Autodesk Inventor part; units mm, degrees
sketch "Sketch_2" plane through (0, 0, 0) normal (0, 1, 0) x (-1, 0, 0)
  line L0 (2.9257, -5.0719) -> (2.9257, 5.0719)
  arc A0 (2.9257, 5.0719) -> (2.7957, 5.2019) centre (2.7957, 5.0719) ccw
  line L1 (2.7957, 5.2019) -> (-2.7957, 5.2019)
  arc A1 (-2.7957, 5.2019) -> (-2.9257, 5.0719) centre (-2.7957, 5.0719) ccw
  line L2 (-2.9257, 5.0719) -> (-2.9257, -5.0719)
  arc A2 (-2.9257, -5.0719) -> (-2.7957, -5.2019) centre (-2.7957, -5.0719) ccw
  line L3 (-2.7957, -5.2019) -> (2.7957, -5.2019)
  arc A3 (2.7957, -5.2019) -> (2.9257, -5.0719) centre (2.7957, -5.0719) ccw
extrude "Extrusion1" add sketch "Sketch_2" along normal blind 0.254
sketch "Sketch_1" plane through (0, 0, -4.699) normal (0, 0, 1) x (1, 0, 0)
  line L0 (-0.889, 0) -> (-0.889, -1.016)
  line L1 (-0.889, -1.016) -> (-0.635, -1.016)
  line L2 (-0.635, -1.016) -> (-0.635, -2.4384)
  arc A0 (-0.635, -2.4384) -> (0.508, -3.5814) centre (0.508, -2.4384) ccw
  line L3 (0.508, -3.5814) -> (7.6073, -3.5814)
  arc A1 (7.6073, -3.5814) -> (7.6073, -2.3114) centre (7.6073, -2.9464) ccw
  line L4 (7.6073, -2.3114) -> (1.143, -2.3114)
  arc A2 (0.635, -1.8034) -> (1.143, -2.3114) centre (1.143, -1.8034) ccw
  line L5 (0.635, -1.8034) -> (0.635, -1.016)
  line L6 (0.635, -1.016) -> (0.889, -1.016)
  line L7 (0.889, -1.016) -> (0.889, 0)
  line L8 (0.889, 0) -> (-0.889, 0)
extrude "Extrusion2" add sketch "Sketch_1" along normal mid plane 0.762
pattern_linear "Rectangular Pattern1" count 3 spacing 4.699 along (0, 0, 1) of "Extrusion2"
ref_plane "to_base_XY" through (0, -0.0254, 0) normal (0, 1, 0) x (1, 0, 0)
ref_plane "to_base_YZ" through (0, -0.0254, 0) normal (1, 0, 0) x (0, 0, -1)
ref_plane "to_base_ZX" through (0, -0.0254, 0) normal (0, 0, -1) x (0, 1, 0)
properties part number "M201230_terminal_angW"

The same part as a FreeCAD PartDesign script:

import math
import FreeCAD as App
import Part
import Sketcher
from FreeCAD import Vector
Q = App.Units.Quantity

doc = App.newDocument("Part")
body = doc.addObject("PartDesign::Body", "Body")

# Sketch on XZ plane
sketch1 = body.newObject("Sketcher::SketchObject", "Sketch")
sketch1.AttachmentSupport = (doc.getObject("XZ_Plane"), [""])
sketch1.MapMode = "FlatFace"
sketch1.addGeometry(Part.ArcOfCircle(Part.Circle(Vector(-2.7957, -5.0719, 0), Vector(0, 0, 1), 0.13), math.radians(180), math.radians(270)), False)
sketch1.addGeometry(Part.LineSegment(Vector(-2.9257, -5.0719, 0), Vector(-2.9257, 5.0719, 0)), False)
sketch1.addGeometry(Part.ArcOfCircle(Part.Circle(Vector(-2.7957, 5.0719, 0), Vector(0, 0, 1), 0.13), math.radians(90), math.radians(180)), False)
sketch1.addGeometry(Part.LineSegment(Vector(-2.7957, 5.2019, 0), Vector(2.7957, 5.2019, 0)), False)
sketch1.addGeometry(Part.ArcOfCircle(Part.Circle(Vector(2.7957, 5.0719, 0), Vector(0, 0, 1), 0.13), math.radians(0), math.radians(90)), False)
sketch1.addGeometry(Part.LineSegment(Vector(2.9257, 5.0719, 0), Vector(2.9257, -5.0719, 0)), False)
sketch1.addGeometry(Part.ArcOfCircle(Part.Circle(Vector(2.7957, -5.0719, 0), Vector(0, 0, 1), 0.13), math.radians(-90), math.radians(0)), False)
sketch1.addGeometry(Part.LineSegment(Vector(2.7957, -5.2019, 0), Vector(-2.7957, -5.2019, 0)), False)
sketch1.addConstraint(Sketcher.Constraint("Tangent", 0, 1, 1, 1))
sketch1.addConstraint(Sketcher.Constraint("Tangent", 1, 2, 2, 2))
sketch1.addConstraint(Sketcher.Constraint("Tangent", 2, 1, 3, 1))
sketch1.addConstraint(Sketcher.Constraint("Tangent", 3, 2, 4, 2))
sketch1.addConstraint(Sketcher.Constraint("Tangent", 4, 1, 5, 1))
sketch1.addConstraint(Sketcher.Constraint("Tangent", 5, 2, 6, 2))
sketch1.addConstraint(Sketcher.Constraint("Tangent", 6, 1, 7, 1))
sketch1.addConstraint(Sketcher.Constraint("Tangent", 7, 2, 0, 2))
sketch1.addConstraint(Sketcher.Constraint("Vertical", 1))
sketch1.addConstraint(Sketcher.Constraint("Horizontal", 3))
sketch1.addConstraint(Sketcher.Constraint("Vertical", 5))
sketch1.addConstraint(Sketcher.Constraint("Horizontal", 7))
sketch1.addConstraint(Sketcher.Constraint("Equal", 0, 2))
sketch1.addConstraint(Sketcher.Constraint("Equal", 2, 4))
sketch1.addConstraint(Sketcher.Constraint("Equal", 4, 6))
sketch1.addConstraint(Sketcher.Constraint("Symmetric", 0, 3, 4, 3, -1, 1))
sketch1.addConstraint(Sketcher.Constraint("Radius", 0, 0.13))
sketch1.addConstraint(Sketcher.Constraint("DistanceX", 3, 1, 3, 2, 5.5914))
sketch1.addConstraint(Sketcher.Constraint("DistanceY", 1, 1, 1, 2, 10.1438))
pad1 = body.newObject("PartDesign::Pad", "Pad")
pad1.Profile = sketch1
pad1.Length = Q("0.01 in")
pad1.Reversed = True

# Sketch on XY plane
sketch2 = body.newObject("Sketcher::SketchObject", "Sketch001")
sketch2.AttachmentSupport = (doc.getObject("XY_Plane"), [""])
sketch2.MapMode = "FlatFace"
sketch2.AttachmentOffset = App.Placement(Vector(0, 0, -0.185 * 25.4), App.Rotation())
sketch2.addGeometry(Part.LineSegment(Vector(0.889, 0, 0), Vector(-0.889, 0, 0)), False)
sketch2.addGeometry(Part.LineSegment(Vector(-0.889, 0, 0), Vector(-0.889, -1.016, 0)), False)
sketch2.addGeometry(Part.LineSegment(Vector(-0.889, -1.016, 0), Vector(-0.635, -1.016, 0)), False)
sketch2.addGeometry(Part.LineSegment(Vector(-0.635, -1.016, 0), Vector(-0.635, -2.4384, 0)), False)
sketch2.addGeometry(Part.ArcOfCircle(Part.Circle(Vector(0.508, -2.4384, 0), Vector(0, 0, 1), 1.143), math.radians(180), math.radians(270)), False)
sketch2.addGeometry(Part.LineSegment(Vector(0.508, -3.5814, 0), Vector(7.6073, -3.5814, 0)), False)
sketch2.addGeometry(Part.ArcOfCircle(Part.Circle(Vector(7.6073, -2.9464, 0), Vector(0, 0, 1), 0.635), math.radians(-90), math.radians(90)), False)
sketch2.addGeometry(Part.LineSegment(Vector(7.6073, -2.3114, 0), Vector(1.143, -2.3114, 0)), False)
sketch2.addGeometry(Part.ArcOfCircle(Part.Circle(Vector(1.143, -1.8034, 0), Vector(0, 0, 1), 0.508), math.radians(180), math.radians(270)), False)
sketch2.addGeometry(Part.LineSegment(Vector(0.635, -1.8034, 0), Vector(0.635, -1.016, 0)), False)
sketch2.addGeometry(Part.LineSegment(Vector(0.635, -1.016, 0), Vector(0.889, -1.016, 0)), False)
sketch2.addGeometry(Part.LineSegment(Vector(0.889, -1.016, 0), Vector(0.889, 0, 0)), False)
sketch2.addConstraint(Sketcher.Constraint("Coincident", 0, 2, 1, 1))
sketch2.addConstraint(Sketcher.Constraint("Coincident", 1, 2, 2, 1))
sketch2.addConstraint(Sketcher.Constraint("Coincident", 2, 2, 3, 1))
sketch2.addConstraint(Sketcher.Constraint("Tangent", 3, 2, 4, 1))
sketch2.addConstraint(Sketcher.Constraint("Tangent", 4, 2, 5, 1))
sketch2.addConstraint(Sketcher.Constraint("Tangent", 5, 2, 6, 1))
sketch2.addConstraint(Sketcher.Constraint("Tangent", 6, 2, 7, 1))
sketch2.addConstraint(Sketcher.Constraint("Tangent", 7, 2, 8, 2))
sketch2.addConstraint(Sketcher.Constraint("Tangent", 8, 1, 9, 1))
sketch2.addConstraint(Sketcher.Constraint("Coincident", 9, 2, 10, 1))
sketch2.addConstraint(Sketcher.Constraint("Coincident", 10, 2, 11, 1))
sketch2.addConstraint(Sketcher.Constraint("Coincident", 11, 2, 0, 1))
sketch2.addConstraint(Sketcher.Constraint("Horizontal", 0))
sketch2.addConstraint(Sketcher.Constraint("Vertical", 1))
sketch2.addConstraint(Sketcher.Constraint("Horizontal", 2))
sketch2.addConstraint(Sketcher.Constraint("Vertical", 3))
sketch2.addConstraint(Sketcher.Constraint("Horizontal", 5))
sketch2.addConstraint(Sketcher.Constraint("Horizontal", 7))
sketch2.addConstraint(Sketcher.Constraint("Vertical", 9))
sketch2.addConstraint(Sketcher.Constraint("Horizontal", 10))
sketch2.addConstraint(Sketcher.Constraint("Vertical", 11))
sketch2.addConstraint(Sketcher.Constraint("Symmetric", 0, 2, 11, 2, -1, 1))
sketch2.addConstraint(Sketcher.Constraint("Symmetric", 2, 2, 9, 2, -2))
sketch2.addConstraint(Sketcher.Constraint("Radius", 8, Q("0.02 in")))
sketch2.addConstraint(Sketcher.Constraint("Radius", 4, Q("0.045 in")))
sketch2.addConstraint(Sketcher.Constraint("Radius", 6, Q("0.025 in")))
sketch2.addConstraint(Sketcher.Constraint("DistanceX", 0, 2, 0, 1, Q("0.07 in")))
sketch2.addConstraint(Sketcher.Constraint("DistanceX", 2, 1, 2, 2, Q("0.01 in")))
sketch2.addConstraint(Sketcher.Constraint("DistanceY", 1, 2, 1, 1, Q("0.04 in")))
sketch2.addConstraint(Sketcher.Constraint("DistanceY", 3, 2, 3, 1, Q("0.056 in")))
sketch2.addConstraint(Sketcher.Constraint("DistanceX", 5, 1, 5, 2, Q("0.2795 in")))
pad2 = body.newObject("PartDesign::Pad", "Pad001")
pad2.Profile = sketch2
pad2.Length = Q("0.03 in")
pad2.Midplane = True
doc.recompute()

linearpattern = body.newObject("PartDesign::LinearPattern", "LinearPattern")
linearpattern.Originals = [pad2]
linearpattern.Direction = (doc.getObject("Z_Axis"), [""])
linearpattern.Mode = "offset"
linearpattern.Offset = Q("0.185 in")
linearpattern.Occurrences = 3
body.Tip = linearpattern

doc.recompute()
